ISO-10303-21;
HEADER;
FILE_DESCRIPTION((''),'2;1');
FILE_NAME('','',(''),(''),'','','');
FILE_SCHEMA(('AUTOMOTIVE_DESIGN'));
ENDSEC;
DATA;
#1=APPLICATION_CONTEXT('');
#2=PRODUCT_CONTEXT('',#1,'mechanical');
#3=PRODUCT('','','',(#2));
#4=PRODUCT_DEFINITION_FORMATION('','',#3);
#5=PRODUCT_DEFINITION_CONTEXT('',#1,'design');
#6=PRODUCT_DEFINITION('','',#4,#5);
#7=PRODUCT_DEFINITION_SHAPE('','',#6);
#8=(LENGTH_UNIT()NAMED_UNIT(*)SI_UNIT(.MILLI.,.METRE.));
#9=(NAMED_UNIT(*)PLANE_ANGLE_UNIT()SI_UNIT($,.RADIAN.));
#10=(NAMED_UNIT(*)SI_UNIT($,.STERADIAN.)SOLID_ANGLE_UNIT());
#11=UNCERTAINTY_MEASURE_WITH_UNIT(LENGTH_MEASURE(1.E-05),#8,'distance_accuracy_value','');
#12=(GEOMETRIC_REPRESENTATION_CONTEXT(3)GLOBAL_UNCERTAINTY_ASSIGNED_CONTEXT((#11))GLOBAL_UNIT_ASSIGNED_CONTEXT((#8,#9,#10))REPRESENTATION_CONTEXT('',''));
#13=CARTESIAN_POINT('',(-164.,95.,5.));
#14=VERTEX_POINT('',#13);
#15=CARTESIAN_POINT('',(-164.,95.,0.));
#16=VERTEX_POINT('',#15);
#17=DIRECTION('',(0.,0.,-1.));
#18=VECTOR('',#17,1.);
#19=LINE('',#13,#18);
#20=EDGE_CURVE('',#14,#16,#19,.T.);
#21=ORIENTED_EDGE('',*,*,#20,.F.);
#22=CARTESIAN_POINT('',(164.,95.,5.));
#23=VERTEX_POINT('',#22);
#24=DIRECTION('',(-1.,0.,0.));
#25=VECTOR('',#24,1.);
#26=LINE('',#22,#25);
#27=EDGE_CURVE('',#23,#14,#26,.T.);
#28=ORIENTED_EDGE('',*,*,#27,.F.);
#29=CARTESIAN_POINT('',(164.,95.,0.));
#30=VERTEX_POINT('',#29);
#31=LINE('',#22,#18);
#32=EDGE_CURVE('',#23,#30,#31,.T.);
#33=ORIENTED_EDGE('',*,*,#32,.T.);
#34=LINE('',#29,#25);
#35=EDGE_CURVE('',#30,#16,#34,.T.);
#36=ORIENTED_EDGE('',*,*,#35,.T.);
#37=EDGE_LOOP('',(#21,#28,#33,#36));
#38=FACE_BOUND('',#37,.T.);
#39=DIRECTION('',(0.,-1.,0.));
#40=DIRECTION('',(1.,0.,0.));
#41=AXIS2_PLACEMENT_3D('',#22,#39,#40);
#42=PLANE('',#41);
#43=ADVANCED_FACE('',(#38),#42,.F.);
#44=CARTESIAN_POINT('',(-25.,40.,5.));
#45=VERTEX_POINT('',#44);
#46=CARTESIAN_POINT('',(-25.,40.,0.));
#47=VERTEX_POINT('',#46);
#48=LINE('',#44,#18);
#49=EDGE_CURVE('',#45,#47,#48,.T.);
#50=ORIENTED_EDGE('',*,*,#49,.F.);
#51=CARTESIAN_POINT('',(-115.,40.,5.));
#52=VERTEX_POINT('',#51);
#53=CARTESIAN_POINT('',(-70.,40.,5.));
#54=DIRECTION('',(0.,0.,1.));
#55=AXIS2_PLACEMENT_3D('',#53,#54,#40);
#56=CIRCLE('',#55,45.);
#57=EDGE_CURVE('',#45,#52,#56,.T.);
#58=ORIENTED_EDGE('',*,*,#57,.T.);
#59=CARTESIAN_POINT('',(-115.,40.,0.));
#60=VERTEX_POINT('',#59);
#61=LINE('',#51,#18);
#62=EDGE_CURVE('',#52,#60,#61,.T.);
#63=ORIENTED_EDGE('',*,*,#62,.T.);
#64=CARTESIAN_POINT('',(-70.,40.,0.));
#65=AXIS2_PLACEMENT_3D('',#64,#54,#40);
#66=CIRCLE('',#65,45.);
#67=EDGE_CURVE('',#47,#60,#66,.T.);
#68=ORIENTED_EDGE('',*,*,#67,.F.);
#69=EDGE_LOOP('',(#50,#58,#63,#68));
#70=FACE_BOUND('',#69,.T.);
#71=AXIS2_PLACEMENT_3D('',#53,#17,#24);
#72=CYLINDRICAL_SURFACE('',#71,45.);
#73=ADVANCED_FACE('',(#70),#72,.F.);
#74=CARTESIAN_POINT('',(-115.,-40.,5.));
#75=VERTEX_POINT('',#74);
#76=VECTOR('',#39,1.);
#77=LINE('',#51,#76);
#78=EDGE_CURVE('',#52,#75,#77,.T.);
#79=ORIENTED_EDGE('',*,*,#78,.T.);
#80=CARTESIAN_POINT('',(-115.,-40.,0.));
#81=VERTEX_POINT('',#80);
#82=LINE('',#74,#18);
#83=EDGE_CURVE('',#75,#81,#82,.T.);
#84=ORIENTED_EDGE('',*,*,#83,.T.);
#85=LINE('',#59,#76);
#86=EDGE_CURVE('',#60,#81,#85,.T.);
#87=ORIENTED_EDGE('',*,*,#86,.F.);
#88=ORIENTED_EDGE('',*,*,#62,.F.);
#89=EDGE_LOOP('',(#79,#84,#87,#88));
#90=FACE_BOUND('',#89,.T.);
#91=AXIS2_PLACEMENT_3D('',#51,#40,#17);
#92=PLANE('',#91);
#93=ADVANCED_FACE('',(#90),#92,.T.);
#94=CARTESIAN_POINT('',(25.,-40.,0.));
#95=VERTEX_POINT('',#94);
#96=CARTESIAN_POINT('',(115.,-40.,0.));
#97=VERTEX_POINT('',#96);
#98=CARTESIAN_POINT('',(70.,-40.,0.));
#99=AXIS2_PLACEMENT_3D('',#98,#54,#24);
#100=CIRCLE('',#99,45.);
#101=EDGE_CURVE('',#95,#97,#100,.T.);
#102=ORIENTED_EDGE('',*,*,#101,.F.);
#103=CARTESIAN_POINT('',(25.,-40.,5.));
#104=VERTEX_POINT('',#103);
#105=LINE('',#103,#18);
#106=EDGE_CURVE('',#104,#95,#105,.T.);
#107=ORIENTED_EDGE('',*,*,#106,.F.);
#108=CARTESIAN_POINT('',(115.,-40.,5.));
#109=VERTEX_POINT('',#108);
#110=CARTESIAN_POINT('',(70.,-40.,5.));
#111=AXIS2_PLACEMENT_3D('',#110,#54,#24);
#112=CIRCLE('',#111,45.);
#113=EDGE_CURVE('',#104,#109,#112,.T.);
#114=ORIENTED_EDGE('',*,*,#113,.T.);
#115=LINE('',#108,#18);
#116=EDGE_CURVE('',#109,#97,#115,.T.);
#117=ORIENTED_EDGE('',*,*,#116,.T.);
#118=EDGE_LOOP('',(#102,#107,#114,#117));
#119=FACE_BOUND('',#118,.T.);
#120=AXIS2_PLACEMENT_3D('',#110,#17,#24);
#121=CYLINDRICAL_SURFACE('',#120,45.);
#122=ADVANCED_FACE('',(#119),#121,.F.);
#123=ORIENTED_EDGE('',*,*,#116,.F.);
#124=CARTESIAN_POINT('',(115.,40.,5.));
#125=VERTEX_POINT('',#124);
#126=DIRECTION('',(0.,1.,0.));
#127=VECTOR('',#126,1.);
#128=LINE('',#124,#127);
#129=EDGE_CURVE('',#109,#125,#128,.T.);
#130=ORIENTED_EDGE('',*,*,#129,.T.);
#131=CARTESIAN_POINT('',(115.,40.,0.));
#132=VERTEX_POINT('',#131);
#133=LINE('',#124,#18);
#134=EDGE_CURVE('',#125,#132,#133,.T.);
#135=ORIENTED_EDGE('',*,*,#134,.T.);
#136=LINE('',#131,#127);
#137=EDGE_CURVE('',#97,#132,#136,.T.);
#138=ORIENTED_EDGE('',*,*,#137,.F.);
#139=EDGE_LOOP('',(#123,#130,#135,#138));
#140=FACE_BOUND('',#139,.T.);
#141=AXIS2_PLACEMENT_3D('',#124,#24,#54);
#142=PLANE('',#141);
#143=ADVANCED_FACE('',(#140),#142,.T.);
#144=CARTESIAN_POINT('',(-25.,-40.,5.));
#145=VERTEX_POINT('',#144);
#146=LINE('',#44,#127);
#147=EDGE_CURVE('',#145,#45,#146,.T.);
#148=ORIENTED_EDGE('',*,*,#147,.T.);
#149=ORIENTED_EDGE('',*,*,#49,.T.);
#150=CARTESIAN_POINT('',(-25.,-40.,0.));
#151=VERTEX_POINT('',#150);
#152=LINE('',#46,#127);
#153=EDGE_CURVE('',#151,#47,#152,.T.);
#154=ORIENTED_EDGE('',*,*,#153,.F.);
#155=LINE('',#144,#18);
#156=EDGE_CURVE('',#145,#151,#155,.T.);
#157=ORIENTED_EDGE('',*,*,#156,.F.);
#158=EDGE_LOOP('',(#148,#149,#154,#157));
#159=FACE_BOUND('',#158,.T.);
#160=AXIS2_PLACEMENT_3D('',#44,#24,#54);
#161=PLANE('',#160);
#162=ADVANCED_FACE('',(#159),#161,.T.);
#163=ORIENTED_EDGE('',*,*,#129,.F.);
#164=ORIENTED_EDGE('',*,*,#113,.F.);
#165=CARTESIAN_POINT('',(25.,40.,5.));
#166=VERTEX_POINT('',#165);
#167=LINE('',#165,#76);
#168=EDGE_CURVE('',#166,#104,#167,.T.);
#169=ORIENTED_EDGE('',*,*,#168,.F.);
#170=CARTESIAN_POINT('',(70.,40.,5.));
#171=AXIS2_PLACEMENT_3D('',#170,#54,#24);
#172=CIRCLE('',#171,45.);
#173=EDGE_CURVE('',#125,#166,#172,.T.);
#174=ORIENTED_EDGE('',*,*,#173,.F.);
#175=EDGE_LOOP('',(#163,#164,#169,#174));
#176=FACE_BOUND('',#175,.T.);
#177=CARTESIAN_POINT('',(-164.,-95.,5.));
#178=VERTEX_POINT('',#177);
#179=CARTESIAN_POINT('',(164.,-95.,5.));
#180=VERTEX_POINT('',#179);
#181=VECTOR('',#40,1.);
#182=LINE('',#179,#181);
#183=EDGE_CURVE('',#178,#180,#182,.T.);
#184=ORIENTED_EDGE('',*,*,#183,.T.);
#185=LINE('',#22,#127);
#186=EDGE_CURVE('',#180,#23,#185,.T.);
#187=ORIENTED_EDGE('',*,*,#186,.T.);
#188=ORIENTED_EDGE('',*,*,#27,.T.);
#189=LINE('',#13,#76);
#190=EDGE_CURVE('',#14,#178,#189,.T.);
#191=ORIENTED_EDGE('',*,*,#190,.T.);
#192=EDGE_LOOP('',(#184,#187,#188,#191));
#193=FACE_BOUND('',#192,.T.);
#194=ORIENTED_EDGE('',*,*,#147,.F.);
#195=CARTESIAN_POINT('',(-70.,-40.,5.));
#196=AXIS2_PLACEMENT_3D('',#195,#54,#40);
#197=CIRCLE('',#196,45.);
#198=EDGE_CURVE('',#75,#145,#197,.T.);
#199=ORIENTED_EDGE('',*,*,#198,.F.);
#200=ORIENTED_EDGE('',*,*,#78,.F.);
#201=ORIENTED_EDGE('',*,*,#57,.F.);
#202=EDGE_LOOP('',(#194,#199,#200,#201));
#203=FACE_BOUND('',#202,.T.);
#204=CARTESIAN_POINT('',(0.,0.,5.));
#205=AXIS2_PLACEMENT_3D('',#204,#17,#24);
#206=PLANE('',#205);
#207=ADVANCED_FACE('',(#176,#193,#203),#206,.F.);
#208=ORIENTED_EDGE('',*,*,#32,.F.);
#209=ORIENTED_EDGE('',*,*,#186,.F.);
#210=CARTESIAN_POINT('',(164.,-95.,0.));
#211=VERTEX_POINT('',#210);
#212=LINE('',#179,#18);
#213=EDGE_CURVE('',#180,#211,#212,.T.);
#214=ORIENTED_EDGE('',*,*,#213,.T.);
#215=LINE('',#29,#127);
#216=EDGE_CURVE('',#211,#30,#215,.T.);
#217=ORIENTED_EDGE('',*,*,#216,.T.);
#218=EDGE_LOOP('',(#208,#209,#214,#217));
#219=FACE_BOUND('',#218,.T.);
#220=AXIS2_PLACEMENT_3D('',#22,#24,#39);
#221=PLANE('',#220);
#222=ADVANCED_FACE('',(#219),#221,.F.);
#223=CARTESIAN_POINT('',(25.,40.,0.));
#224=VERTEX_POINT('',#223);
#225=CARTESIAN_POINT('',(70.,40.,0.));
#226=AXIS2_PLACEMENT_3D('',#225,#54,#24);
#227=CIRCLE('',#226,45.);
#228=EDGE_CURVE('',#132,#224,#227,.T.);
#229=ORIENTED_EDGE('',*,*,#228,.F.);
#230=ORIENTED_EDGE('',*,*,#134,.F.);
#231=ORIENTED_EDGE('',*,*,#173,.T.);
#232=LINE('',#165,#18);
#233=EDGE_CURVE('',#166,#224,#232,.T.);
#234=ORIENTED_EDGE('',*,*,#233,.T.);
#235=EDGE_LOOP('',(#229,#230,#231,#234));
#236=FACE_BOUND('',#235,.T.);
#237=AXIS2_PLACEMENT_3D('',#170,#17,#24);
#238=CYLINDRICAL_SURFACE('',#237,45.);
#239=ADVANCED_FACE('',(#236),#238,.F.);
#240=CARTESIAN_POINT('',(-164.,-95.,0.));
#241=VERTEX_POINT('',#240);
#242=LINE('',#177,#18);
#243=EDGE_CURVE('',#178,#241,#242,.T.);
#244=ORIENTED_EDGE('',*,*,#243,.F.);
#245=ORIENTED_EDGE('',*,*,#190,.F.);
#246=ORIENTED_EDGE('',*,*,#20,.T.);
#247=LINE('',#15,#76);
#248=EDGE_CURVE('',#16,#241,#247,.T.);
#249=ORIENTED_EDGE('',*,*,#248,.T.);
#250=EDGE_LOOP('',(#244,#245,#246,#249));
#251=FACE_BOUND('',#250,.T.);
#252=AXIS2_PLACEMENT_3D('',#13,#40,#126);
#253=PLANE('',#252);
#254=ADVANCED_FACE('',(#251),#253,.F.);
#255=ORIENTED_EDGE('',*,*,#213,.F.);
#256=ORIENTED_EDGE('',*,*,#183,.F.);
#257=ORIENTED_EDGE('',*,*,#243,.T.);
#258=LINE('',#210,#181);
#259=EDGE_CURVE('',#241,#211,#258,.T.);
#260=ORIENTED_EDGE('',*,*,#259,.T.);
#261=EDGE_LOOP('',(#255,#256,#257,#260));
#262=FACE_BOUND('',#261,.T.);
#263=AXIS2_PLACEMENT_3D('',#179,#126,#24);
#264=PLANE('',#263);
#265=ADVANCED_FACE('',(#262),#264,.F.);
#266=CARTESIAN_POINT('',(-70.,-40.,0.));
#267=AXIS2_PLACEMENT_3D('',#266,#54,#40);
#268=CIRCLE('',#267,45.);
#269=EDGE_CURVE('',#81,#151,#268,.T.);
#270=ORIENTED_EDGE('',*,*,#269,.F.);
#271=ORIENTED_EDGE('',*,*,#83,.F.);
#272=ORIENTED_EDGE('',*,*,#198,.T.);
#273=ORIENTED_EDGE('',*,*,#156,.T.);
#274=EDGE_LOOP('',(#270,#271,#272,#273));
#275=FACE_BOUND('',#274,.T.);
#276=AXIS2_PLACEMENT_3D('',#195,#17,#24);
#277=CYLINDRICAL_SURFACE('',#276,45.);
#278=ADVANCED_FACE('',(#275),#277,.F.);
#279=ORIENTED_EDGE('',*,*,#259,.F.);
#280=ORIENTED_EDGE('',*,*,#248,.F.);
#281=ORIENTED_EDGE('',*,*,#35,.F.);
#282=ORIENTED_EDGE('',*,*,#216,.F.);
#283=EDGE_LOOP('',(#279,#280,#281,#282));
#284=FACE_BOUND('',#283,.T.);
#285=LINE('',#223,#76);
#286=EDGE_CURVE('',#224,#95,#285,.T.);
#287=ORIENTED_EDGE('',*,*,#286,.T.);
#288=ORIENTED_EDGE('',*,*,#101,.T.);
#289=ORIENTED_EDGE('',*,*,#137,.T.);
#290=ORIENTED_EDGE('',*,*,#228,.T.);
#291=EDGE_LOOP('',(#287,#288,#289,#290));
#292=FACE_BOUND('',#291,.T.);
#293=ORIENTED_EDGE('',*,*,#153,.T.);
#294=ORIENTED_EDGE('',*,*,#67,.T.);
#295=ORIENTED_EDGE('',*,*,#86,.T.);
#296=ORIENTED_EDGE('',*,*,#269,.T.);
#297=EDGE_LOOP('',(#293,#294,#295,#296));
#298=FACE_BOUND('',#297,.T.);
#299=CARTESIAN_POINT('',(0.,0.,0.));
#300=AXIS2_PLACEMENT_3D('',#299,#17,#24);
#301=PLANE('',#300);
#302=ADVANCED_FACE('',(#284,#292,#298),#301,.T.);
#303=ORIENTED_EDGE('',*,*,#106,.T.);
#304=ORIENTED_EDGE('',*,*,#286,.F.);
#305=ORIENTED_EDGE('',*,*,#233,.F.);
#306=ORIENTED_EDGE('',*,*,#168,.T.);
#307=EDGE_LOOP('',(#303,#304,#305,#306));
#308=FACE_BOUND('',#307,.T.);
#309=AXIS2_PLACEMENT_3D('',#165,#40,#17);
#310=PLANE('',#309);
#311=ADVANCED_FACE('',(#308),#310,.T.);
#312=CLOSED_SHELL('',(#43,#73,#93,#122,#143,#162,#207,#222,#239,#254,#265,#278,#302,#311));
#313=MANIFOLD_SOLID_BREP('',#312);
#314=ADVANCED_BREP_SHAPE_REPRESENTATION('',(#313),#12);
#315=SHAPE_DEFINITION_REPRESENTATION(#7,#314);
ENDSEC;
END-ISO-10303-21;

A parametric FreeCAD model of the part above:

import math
import FreeCAD as App
import Part
import Sketcher

V = App.Vector
Q = App.Units.Quantity


def add_polygon(sketch, points):
    """Adds a closed chain of lines whose ends are joined by coincident constraints."""
    first, n = sketch.GeometryCount, len(points)
    for a, b in zip(points, points[1:] + points[:1]):
        sketch.addGeometry(Part.LineSegment(App.Vector(*a, 0), App.Vector(*b, 0)), False)
    for i in range(n):
        sketch.addConstraint(Sketcher.Constraint("Coincident", first + i, 2, first + (i + 1) % n, 1))

doc = App.newDocument("Part")
params = doc.addObject("Spreadsheet::Sheet", "Params")
for row, (alias, value) in enumerate([
    ("sketch1_radius", "45 mm"),
    ("sketch1_width", "328 mm"),
    ("sketch1_height", "190 mm"),
    ("sketch1_height2", "80 mm"),
    ("pad1_length", "5 mm"),
], start=1):
    params.set(f"A{row}", alias)
    params.set(f"B{row}", "=" + value)
    params.setAlias(f"B{row}", alias)

body = doc.addObject("PartDesign::Body", "Body")

# Sketch on XY plane
sketch1 = doc.addObject("Sketcher::SketchObject", "Sketch")
body.addObject(sketch1)
sketch1.AttachmentSupport = (doc.XY_Plane, [""])
sketch1.MapMode = "FlatFace"
add_polygon(sketch1, [(-164, 95), (-164, -95), (164, -95), (164, 95)])  # lines 0-3
sketch1.addGeometry(Part.ArcOfCircle(Part.Circle(V(-70, 40, 0), V(0, 0, 1), 45), math.radians(0), math.radians(180)), False)  # 4
sketch1.addGeometry(Part.LineSegment(V(-25, 40, 0), V(-25, -40, 0)), False)  # 5
sketch1.addGeometry(Part.ArcOfCircle(Part.Circle(V(-70, -40, 0), V(0, 0, 1), 45), math.radians(180), math.radians(360)), False)  # 6
sketch1.addGeometry(Part.LineSegment(V(-115, -40, 0), V(-115, 40, 0)), False)  # 7
sketch1.addGeometry(Part.LineSegment(V(25, -40, 0), V(25, 40, 0)), False)  # 8
sketch1.addGeometry(Part.ArcOfCircle(Part.Circle(V(70, 40, 0), V(0, 0, 1), 45), math.radians(0), math.radians(180)), False)  # 9
sketch1.addGeometry(Part.LineSegment(V(115, 40, 0), V(115, -40, 0)), False)  # 10
sketch1.addGeometry(Part.ArcOfCircle(Part.Circle(V(70, -40, 0), V(0, 0, 1), 45), math.radians(180), math.radians(360)), False)  # 11
sketch1.addConstraint(Sketcher.Constraint("Tangent", 4, 1, 5, 1))
sketch1.addConstraint(Sketcher.Constraint("Tangent", 5, 2, 6, 2))
sketch1.addConstraint(Sketcher.Constraint("Tangent", 6, 1, 7, 1))
sketch1.addConstraint(Sketcher.Constraint("Tangent", 7, 2, 4, 2))
sketch1.addConstraint(Sketcher.Constraint("Tangent", 8, 2, 9, 2))
sketch1.addConstraint(Sketcher.Constraint("Tangent", 9, 1, 10, 1))
sketch1.addConstraint(Sketcher.Constraint("Tangent", 10, 2, 11, 2))
sketch1.addConstraint(Sketcher.Constraint("Tangent", 11, 1, 8, 1))
sketch1.addConstraint(Sketcher.Constraint("Vertical", 0))
sketch1.addConstraint(Sketcher.Constraint("Horizontal", 1))
sketch1.addConstraint(Sketcher.Constraint("Vertical", 2))
sketch1.addConstraint(Sketcher.Constraint("Horizontal", 3))
sketch1.addConstraint(Sketcher.Constraint("Vertical", 5))
sketch1.addConstraint(Sketcher.Constraint("Vertical", 7))
sketch1.addConstraint(Sketcher.Constraint("Vertical", 8))
sketch1.addConstraint(Sketcher.Constraint("Vertical", 10))
sketch1.addConstraint(Sketcher.Constraint("Equal", 6, 9))
sketch1.addConstraint(Sketcher.Constraint("Symmetric", 6, 3, 9, 3, -1, 1))
sketch1.addConstraint(Sketcher.Constraint("Symmetric", 0, 2, 2, 2, -1, 1))
sketch1.addConstraint(Sketcher.Constraint("Horizontal", 4, 3, 9, 3))
sketch1.addConstraint(Sketcher.Constraint("Horizontal", 6, 3, 11, 3))
sketch1.addConstraint(Sketcher.Constraint("Radius", 4, Q("45 mm")))
sketch1.addConstraint(Sketcher.Constraint("DistanceX", 1, 1, 1, 2, Q("328 mm")))
sketch1.addConstraint(Sketcher.Constraint("DistanceY", 0, 2, 0, 1, Q("190 mm")))
sketch1.addConstraint(Sketcher.Constraint("DistanceY", 5, 2, 5, 1, Q("80 mm")))
sketch1.addConstraint(Sketcher.Constraint("DistanceX", 4, 3, -1, 1, Q("70 mm")))
sketch1.setExpression("Constraints[25]", "Params.sketch1_radius")
sketch1.setExpression("Constraints[26]", "Params.sketch1_width")
sketch1.setExpression("Constraints[27]", "Params.sketch1_height")
sketch1.setExpression("Constraints[28]", "Params.sketch1_height2")
pad1 = doc.addObject("PartDesign::Pad", "Pad")
body.addObject(pad1)
pad1.Profile = sketch1
pad1.setExpression("Length", "Params.pad1_length")

doc.recompute()
